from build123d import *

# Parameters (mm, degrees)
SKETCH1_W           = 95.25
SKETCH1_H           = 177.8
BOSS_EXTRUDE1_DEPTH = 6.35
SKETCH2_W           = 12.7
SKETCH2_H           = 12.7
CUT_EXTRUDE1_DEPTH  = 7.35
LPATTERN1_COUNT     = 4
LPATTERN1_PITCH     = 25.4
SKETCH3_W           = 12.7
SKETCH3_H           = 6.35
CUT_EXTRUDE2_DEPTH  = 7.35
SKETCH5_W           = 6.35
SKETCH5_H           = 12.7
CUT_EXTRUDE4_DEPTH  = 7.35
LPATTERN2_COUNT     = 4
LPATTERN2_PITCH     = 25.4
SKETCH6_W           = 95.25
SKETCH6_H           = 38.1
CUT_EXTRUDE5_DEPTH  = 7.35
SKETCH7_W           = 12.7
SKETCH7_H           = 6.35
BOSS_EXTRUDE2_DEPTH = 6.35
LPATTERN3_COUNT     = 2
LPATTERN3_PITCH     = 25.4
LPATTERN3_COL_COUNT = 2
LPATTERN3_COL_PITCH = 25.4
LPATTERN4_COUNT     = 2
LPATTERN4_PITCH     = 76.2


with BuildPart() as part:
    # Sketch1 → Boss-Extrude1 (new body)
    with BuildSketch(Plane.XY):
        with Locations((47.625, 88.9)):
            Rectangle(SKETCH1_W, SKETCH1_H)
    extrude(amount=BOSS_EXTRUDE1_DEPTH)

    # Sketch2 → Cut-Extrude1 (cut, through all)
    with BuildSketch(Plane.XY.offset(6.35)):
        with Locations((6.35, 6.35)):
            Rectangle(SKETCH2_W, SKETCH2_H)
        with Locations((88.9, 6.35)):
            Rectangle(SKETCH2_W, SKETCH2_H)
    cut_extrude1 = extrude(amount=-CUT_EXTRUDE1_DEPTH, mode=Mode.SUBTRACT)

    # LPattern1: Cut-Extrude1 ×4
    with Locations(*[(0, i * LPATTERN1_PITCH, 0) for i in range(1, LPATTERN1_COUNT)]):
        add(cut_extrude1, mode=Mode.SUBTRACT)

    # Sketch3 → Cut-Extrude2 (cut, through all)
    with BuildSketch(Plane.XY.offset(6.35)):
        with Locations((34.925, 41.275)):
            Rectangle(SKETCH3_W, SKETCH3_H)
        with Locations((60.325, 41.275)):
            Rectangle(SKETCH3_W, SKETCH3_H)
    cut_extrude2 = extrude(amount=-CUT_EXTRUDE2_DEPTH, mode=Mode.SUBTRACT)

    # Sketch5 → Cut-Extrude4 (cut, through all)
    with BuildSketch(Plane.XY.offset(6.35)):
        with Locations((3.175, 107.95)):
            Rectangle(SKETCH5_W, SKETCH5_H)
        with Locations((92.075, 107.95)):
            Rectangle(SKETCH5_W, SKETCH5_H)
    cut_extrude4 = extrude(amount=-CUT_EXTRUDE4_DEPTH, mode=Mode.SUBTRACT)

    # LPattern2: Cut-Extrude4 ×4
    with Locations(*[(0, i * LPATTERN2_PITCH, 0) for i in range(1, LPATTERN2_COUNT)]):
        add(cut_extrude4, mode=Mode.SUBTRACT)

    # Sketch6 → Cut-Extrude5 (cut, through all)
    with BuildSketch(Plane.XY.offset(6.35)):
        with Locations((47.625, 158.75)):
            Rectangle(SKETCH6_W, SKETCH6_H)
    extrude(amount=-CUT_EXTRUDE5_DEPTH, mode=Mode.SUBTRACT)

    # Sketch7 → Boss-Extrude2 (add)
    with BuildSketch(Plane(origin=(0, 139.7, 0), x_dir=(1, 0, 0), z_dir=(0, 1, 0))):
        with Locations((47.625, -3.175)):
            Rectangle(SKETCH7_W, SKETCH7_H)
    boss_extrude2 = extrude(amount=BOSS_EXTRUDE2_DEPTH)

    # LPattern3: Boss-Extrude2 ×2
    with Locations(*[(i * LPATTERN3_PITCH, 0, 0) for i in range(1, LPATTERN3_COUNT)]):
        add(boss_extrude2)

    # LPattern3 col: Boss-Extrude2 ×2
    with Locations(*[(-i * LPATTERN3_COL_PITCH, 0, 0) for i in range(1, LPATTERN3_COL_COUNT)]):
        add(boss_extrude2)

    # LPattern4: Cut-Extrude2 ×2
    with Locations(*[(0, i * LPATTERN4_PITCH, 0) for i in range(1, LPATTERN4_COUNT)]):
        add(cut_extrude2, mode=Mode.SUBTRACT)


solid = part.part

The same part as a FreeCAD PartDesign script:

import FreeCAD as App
import Part
import Sketcher

V = App.Vector
Q = App.Units.Quantity

doc = App.newDocument("Part")
body = doc.addObject("PartDesign::Body", "Body")

sketch1 = body.newObject("Sketcher::SketchObject", "Sketch")
sketch1.AttachmentSupport = (doc.getObject("XY_Plane"), [""])
sketch1.MapMode = "FlatFace"
sketch1.addGeometry([
    Part.LineSegment(V(0, 178, 0), V(0, 0, 0)),
    Part.LineSegment(V(0, 0, 0), V(95, 0, 0)),
    Part.LineSegment(V(95, 0, 0), V(95, 178, 0)),
    Part.LineSegment(V(95, 178, 0), V(0, 178, 0)),
], False)
sketch1.addConstraint([
    Sketcher.Constraint("Coincident", 0, 2, 1, 1),
    Sketcher.Constraint("Coincident", 1, 2, 2, 1),
    Sketcher.Constraint("Coincident", 2, 2, 3, 1),
    Sketcher.Constraint("Coincident", 3, 2, 0, 1),
    Sketcher.Constraint("Vertical", 0),
    Sketcher.Constraint("Horizontal", 1),
    Sketcher.Constraint("Vertical", 2),
    Sketcher.Constraint("Horizontal", 3),
    Sketcher.Constraint("Coincident", 0, 2, -1, 1),
    Sketcher.Constraint("DistanceY", 0, 2, 0, 1, Q("7 in")),
    Sketcher.Constraint("DistanceX", 1, 1, 1, 2, Q("3.75 in")),
])
pad1 = body.newObject("PartDesign::Pad", "Pad")
pad1.Profile = sketch1
pad1.Length = Q("0.25 in")

sketch2 = body.newObject("Sketcher::SketchObject", "Sketch001")
sketch2.AttachmentSupport = (doc.getObject("XY_Plane"), [""])
sketch2.MapMode = "FlatFace"
sketch2.AttachmentOffset = App.Placement(V(0, 0, 0.25 * 25.4), App.Rotation())
sketch2.addGeometry([
    Part.LineSegment(V(0, 13, 0), V(0, 0, 0)),
    Part.LineSegment(V(0, 0, 0), V(13, 0, 0)),
    Part.LineSegment(V(13, 0, 0), V(13, 13, 0)),
    Part.LineSegment(V(13, 13, 0), V(0, 13, 0)),
    Part.LineSegment(V(83, 13, 0), V(83, 0, 0)),
    Part.LineSegment(V(83, 0, 0), V(95, 0, 0)),
    Part.LineSegment(V(95, 0, 0), V(95, 13, 0)),
    Part.LineSegment(V(95, 13, 0), V(83, 13, 0)),
], False)
sketch2.addConstraint([
    Sketcher.Constraint("Coincident", 0, 2, 1, 1),
    Sketcher.Constraint("Coincident", 1, 2, 2, 1),
    Sketcher.Constraint("Coincident", 2, 2, 3, 1),
    Sketcher.Constraint("Coincident", 3, 2, 0, 1),
    Sketcher.Constraint("Coincident", 4, 2, 5, 1),
    Sketcher.Constraint("Coincident", 5, 2, 6, 1),
    Sketcher.Constraint("Coincident", 6, 2, 7, 1),
    Sketcher.Constraint("Coincident", 7, 2, 4, 1),
    Sketcher.Constraint("Vertical", 0),
    Sketcher.Constraint("Horizontal", 1),
    Sketcher.Constraint("Vertical", 2),
    Sketcher.Constraint("Horizontal", 3),
    Sketcher.Constraint("Vertical", 4),
    Sketcher.Constraint("Horizontal", 5),
    Sketcher.Constraint("Vertical", 6),
    Sketcher.Constraint("Horizontal", 7),
    Sketcher.Constraint("Coincident", 0, 2, -1, 1),
    Sketcher.Constraint("PointOnObject", 4, 2, -1),
    Sketcher.Constraint("Horizontal", 3, 2, 6, 2),
    Sketcher.Constraint("Equal", 3, 5),
    Sketcher.Constraint("Equal", 7, 0),
    Sketcher.Constraint("DistanceX", 1, 1, 1, 2, Q("0.5 in")),
    Sketcher.Constraint("DistanceX", -1, 1, 4, 2, Q("3.25 in")),
])
pocket1 = body.newObject("PartDesign::Pocket", "Pocket")
pocket1.Profile = sketch2
pocket1.Type = "ThroughAll"
doc.recompute()

linearpattern = body.newObject("PartDesign::LinearPattern", "LinearPattern")
linearpattern.Originals = [pocket1]
linearpattern.Direction = (doc.getObject("Y_Axis"), [""])
linearpattern.Mode = "offset"
linearpattern.Offset = Q("1 in")
linearpattern.Occurrences = 4
body.Tip = linearpattern

sketch3 = body.newObject("Sketcher::SketchObject", "Sketch002")
sketch3.AttachmentSupport = (doc.getObject("XY_Plane"), [""])
sketch3.MapMode = "FlatFace"
sketch3.AttachmentOffset = App.Placement(V(0, 0, 0.25 * 25.4), App.Rotation())
sketch3.addGeometry([
    Part.LineSegment(V(29, 44, 0), V(29, 38, 0)),
    Part.LineSegment(V(29, 38, 0), V(41, 38, 0)),
    Part.LineSegment(V(41, 38, 0), V(41, 44, 0)),
    Part.LineSegment(V(41, 44, 0), V(29, 44, 0)),
    Part.LineSegment(V(54, 44, 0), V(54, 38, 0)),
    Part.LineSegment(V(54, 38, 0), V(67, 38, 0)),
    Part.LineSegment(V(67, 38, 0), V(67, 44, 0)),
    Part.LineSegment(V(67, 44, 0), V(54, 44, 0)),
], False)
sketch3.addConstraint([
    Sketcher.Constraint("Coincident", 0, 2, 1, 1),
    Sketcher.Constraint("Coincident", 1, 2, 2, 1),
    Sketcher.Constraint("Coincident", 2, 2, 3, 1),
    Sketcher.Constraint("Coincident", 3, 2, 0, 1),
    Sketcher.Constraint("Coincident", 4, 2, 5, 1),
    Sketcher.Constraint("Coincident", 5, 2, 6, 1),
    Sketcher.Constraint("Coincident", 6, 2, 7, 1),
    Sketcher.Constraint("Coincident", 7, 2, 4, 1),
    Sketcher.Constraint("Vertical", 0),
    Sketcher.Constraint("Horizontal", 1),
    Sketcher.Constraint("Vertical", 2),
    Sketcher.Constraint("Horizontal", 3),
    Sketcher.Constraint("Vertical", 4),
    Sketcher.Constraint("Horizontal", 5),
    Sketcher.Constraint("Vertical", 6),
    Sketcher.Constraint("Horizontal", 7),
    Sketcher.Constraint("Horizontal", 1, 2, 4, 2),
    Sketcher.Constraint("Horizontal", 3, 2, 6, 2),
    Sketcher.Constraint("Equal", 3, 5),
    Sketcher.Constraint("DistanceX", 1, 1, 1, 2, Q("0.5 in")),
    Sketcher.Constraint("DistanceX", 0, 2, 4, 2, Q("1 in")),
    Sketcher.Constraint("DistanceY", 0, 2, 0, 1, Q("0.25 in")),
    Sketcher.Constraint("DistanceY", -1, 1, 0, 2, Q("1.5 in")),
    Sketcher.Constraint("DistanceX", -1, 1, 0, 2, Q("1.125 in")),
])
pocket2 = body.newObject("PartDesign::Pocket", "Pocket001")
pocket2.Profile = sketch3
pocket2.Type = "ThroughAll"

sketch4 = body.newObject("Sketcher::SketchObject", "Sketch003")
sketch4.AttachmentSupport = (doc.getObject("XY_Plane"), [""])
sketch4.MapMode = "FlatFace"
sketch4.AttachmentOffset = App.Placement(V(0, 0, 0.25 * 25.4), App.Rotation())
sketch4.addGeometry([
    Part.LineSegment(V(0, 114, 0), V(0, 102, 0)),
    Part.LineSegment(V(0, 102, 0), V(6, 102, 0)),
    Part.LineSegment(V(6, 102, 0), V(6, 114, 0)),
    Part.LineSegment(V(6, 114, 0), V(0, 114, 0)),
    Part.LineSegment(V(89, 114, 0), V(89, 102, 0)),
    Part.LineSegment(V(89, 102, 0), V(95, 102, 0)),
    Part.LineSegment(V(95, 102, 0), V(95, 114, 0)),
    Part.LineSegment(V(95, 114, 0), V(89, 114, 0)),
], False)
sketch4.addConstraint([
    Sketcher.Constraint("Coincident", 0, 2, 1, 1),
    Sketcher.Constraint("Coincident", 1, 2, 2, 1),
    Sketcher.Constraint("Coincident", 2, 2, 3, 1),
    Sketcher.Constraint("Coincident", 3, 2, 0, 1),
    Sketcher.Constraint("Coincident", 4, 2, 5, 1),
    Sketcher.Constraint("Coincident", 5, 2, 6, 1),
    Sketcher.Constraint("Coincident", 6, 2, 7, 1),
    Sketcher.Constraint("Coincident", 7, 2, 4, 1),
    Sketcher.Constraint("Vertical", 0),
    Sketcher.Constraint("Horizontal", 1),
    Sketcher.Constraint("Vertical", 2),
    Sketcher.Constraint("Horizontal", 3),
    Sketcher.Constraint("Vertical", 4),
    Sketcher.Constraint("Horizontal", 5),
    Sketcher.Constraint("Vertical", 6),
    Sketcher.Constraint("Horizontal", 7),
    Sketcher.Constraint("PointOnObject", 0, 2, -2),
    Sketcher.Constraint("Horizontal", 1, 2, 4, 2),
    Sketcher.Constraint("Horizontal", 3, 2, 6, 2),
    Sketcher.Constraint("Equal", 3, 5),
    Sketcher.Constraint("DistanceY", 0, 2, 0, 1, Q("0.5 in")),
    Sketcher.Constraint("DistanceY", -1, 1, 0, 2, Q("4 in")),
    Sketcher.Constraint("DistanceX", 1, 1, 1, 2, Q("0.25 in")),
    Sketcher.Constraint("DistanceX", -1, 1, 4, 2, Q("3.5 in")),
])
pocket3 = body.newObject("PartDesign::Pocket", "Pocket002")
pocket3.Profile = sketch4
pocket3.Type = "ThroughAll"
doc.recompute()

linearpattern2 = body.newObject("PartDesign::LinearPattern", "LinearPattern001")
linearpattern2.Originals = [pocket3]
linearpattern2.Direction = (doc.getObject("Y_Axis"), [""])
linearpattern2.Mode = "offset"
linearpattern2.Offset = Q("1 in")
linearpattern2.Occurrences = 4
body.Tip = linearpattern2

sketch5 = body.newObject("Sketcher::SketchObject", "Sketch004")
sketch5.AttachmentSupport = (doc.getObject("XY_Plane"), [""])
sketch5.MapMode = "FlatFace"
sketch5.AttachmentOffset = App.Placement(V(0, 0, 0.25 * 25.4), App.Rotation())
sketch5.addGeometry([
    Part.LineSegment(V(0, 178, 0), V(0, 140, 0)),
    Part.LineSegment(V(0, 140, 0), V(95, 140, 0)),
    Part.LineSegment(V(95, 140, 0), V(95, 178, 0)),
    Part.LineSegment(V(95, 178, 0), V(0, 178, 0)),
], False)
sketch5.addConstraint([
    Sketcher.Constraint("Coincident", 0, 2, 1, 1),
    Sketcher.Constraint("Coincident", 1, 2, 2, 1),
    Sketcher.Constraint("Coincident", 2, 2, 3, 1),
    Sketcher.Constraint("Coincident", 3, 2, 0, 1),
    Sketcher.Constraint("Vertical", 0),
    Sketcher.Constraint("Horizontal", 1),
    Sketcher.Constraint("Vertical", 2),
    Sketcher.Constraint("Horizontal", 3),
    Sketcher.Constraint("PointOnObject", 0, 2, -2),
    Sketcher.Constraint("DistanceY", 0, 2, 0, 1, Q("1.5 in")),
    Sketcher.Constraint("DistanceY", -1, 1, 2, 2, Q("7 in")),
    Sketcher.Constraint("DistanceX", 1, 1, 1, 2, Q("3.75 in")),
])
pocket4 = body.newObject("PartDesign::Pocket", "Pocket003")
pocket4.Profile = sketch5
pocket4.Type = "ThroughAll"

sketch6 = body.newObject("Sketcher::SketchObject", "Sketch005")
sketch6.AttachmentSupport = (doc.getObject("XZ_Plane"), [""])
sketch6.MapMode = "FlatFace"
sketch6.AttachmentOffset = App.Placement(V(0, 0, -5.5 * 25.4), App.Rotation())
sketch6.addGeometry([
    Part.LineSegment(V(41, 0, 0), V(41, 6, 0)),
    Part.LineSegment(V(41, 6, 0), V(54, 6, 0)),
    Part.LineSegment(V(54, 6, 0), V(54, 0, 0)),
    Part.LineSegment(V(54, 0, 0), V(41, 0, 0)),
], False)
sketch6.addConstraint([
    Sketcher.Constraint("Coincident", 0, 2, 1, 1),
    Sketcher.Constraint("Coincident", 1, 2, 2, 1),
    Sketcher.Constraint("Coincident", 2, 2, 3, 1),
    Sketcher.Constraint("Coincident", 3, 2, 0, 1),
    Sketcher.Constraint("Vertical", 0),
    Sketcher.Constraint("Horizontal", 1),
    Sketcher.Constraint("Vertical", 2),
    Sketcher.Constraint("Horizontal", 3),
    Sketcher.Constraint("PointOnObject", 2, 2, -1),
    Sketcher.Constraint("DistanceX", 1, 1, 1, 2, Q("0.5 in")),
    Sketcher.Constraint("DistanceY", 0, 1, 0, 2, Q("0.25 in")),
    Sketcher.Constraint("DistanceX", -1, 1, 0, 2, Q("1.625 in")),
])
pad2 = body.newObject("PartDesign::Pad", "Pad001")
pad2.Profile = sketch6
pad2.Length = Q("0.25 in")
pad2.Reversed = True
doc.recompute()

linearpattern3 = body.newObject("PartDesign::LinearPattern", "LinearPattern002")
linearpattern3.Originals = [pad2]
linearpattern3.Direction = (doc.getObject("X_Axis"), [""])
linearpattern3.Mode = "offset"
linearpattern3.Offset = Q("1 in")
linearpattern3.Occurrences = 2
body.Tip = linearpattern3
doc.recompute()

linearpattern4 = body.newObject("PartDesign::LinearPattern", "LinearPattern003")
linearpattern4.Originals = [pad2]
linearpattern4.Direction = (doc.getObject("X_Axis"), [""])
linearpattern4.Mode = "offset"
linearpattern4.Offset = Q("1 in")
linearpattern4.Occurrences = 2
linearpattern4.Reversed = True
body.Tip = linearpattern4
doc.recompute()

linearpattern5 = body.newObject("PartDesign::LinearPattern", "LinearPattern004")
linearpattern5.Originals = [pocket2]
linearpattern5.Direction = (doc.getObject("Y_Axis"), [""])
linearpattern5.Mode = "offset"
linearpattern5.Offset = Q("3 in")
linearpattern5.Occurrences = 2
body.Tip = linearpattern5

doc.recompute()
